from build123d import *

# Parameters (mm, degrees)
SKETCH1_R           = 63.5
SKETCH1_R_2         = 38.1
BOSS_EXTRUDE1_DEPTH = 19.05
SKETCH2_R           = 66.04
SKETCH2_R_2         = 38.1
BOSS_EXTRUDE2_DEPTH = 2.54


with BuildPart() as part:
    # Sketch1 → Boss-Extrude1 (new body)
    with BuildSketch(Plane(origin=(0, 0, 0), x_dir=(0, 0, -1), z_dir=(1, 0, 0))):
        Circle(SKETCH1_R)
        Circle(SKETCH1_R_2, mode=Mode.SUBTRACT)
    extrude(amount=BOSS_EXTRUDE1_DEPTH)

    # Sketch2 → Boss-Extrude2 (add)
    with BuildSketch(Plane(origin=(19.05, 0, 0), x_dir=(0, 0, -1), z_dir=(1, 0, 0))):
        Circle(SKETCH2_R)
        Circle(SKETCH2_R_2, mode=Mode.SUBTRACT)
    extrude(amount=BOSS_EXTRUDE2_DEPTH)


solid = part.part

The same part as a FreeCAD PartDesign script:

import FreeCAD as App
import Part
import Sketcher
from FreeCAD import Vector
Q = App.Units.Quantity

doc = App.newDocument("Part")
body = doc.addObject("PartDesign::Body", "Body")

sketch1 = doc.addObject("Sketcher::SketchObject", "Sketch")
body.addObject(sketch1)
sketch1.AttachmentSupport = (doc.YZ_Plane, [""])
sketch1.MapMode = "FlatFace"
sketch1.addGeometry([
    Part.Circle(Vector(0, 0, 0), Vector(0, 0, 1), 64),
    Part.Circle(Vector(0, 0, 0), Vector(0, 0, 1), 38),
], False)
sketch1.addConstraint([
    Sketcher.Constraint("Coincident", 0, 3, -1, 1),
    Sketcher.Constraint("Coincident", 1, 3, -1, 1),
    Sketcher.Constraint("Diameter", 0, Q("5 in")),
    Sketcher.Constraint("Diameter", 1, Q("3 in")),
])
pad1 = doc.addObject("PartDesign::Pad", "Pad")
body.addObject(pad1)
pad1.Profile = sketch1
pad1.Length = Q("0.75 in")

sketch2 = doc.addObject("Sketcher::SketchObject", "Sketch001")
body.addObject(sketch2)
sketch2.AttachmentSupport = (doc.YZ_Plane, [""])
sketch2.MapMode = "FlatFace"
sketch2.AttachmentOffset = App.Placement(Vector(0, 0, 0.75 * 25.4), App.Rotation())
sketch2.addGeometry([
    Part.Circle(Vector(0, 0, 0), Vector(0, 0, 1), 66),
    Part.Circle(Vector(0, 0, 0), Vector(0, 0, 1), 38),
], False)
sketch2.addConstraint([
    Sketcher.Constraint("Coincident", 0, 3, -1, 1),
    Sketcher.Constraint("Coincident", 1, 3, -1, 1),
    Sketcher.Constraint("Diameter", 1, Q("3 in")),
    Sketcher.Constraint("Diameter", 0, Q("5.2 in")),
])
pad2 = doc.addObject("PartDesign::Pad", "Pad001")
body.addObject(pad2)
pad2.Profile = sketch2
pad2.Length = Q("0.1 in")

doc.recompute()
